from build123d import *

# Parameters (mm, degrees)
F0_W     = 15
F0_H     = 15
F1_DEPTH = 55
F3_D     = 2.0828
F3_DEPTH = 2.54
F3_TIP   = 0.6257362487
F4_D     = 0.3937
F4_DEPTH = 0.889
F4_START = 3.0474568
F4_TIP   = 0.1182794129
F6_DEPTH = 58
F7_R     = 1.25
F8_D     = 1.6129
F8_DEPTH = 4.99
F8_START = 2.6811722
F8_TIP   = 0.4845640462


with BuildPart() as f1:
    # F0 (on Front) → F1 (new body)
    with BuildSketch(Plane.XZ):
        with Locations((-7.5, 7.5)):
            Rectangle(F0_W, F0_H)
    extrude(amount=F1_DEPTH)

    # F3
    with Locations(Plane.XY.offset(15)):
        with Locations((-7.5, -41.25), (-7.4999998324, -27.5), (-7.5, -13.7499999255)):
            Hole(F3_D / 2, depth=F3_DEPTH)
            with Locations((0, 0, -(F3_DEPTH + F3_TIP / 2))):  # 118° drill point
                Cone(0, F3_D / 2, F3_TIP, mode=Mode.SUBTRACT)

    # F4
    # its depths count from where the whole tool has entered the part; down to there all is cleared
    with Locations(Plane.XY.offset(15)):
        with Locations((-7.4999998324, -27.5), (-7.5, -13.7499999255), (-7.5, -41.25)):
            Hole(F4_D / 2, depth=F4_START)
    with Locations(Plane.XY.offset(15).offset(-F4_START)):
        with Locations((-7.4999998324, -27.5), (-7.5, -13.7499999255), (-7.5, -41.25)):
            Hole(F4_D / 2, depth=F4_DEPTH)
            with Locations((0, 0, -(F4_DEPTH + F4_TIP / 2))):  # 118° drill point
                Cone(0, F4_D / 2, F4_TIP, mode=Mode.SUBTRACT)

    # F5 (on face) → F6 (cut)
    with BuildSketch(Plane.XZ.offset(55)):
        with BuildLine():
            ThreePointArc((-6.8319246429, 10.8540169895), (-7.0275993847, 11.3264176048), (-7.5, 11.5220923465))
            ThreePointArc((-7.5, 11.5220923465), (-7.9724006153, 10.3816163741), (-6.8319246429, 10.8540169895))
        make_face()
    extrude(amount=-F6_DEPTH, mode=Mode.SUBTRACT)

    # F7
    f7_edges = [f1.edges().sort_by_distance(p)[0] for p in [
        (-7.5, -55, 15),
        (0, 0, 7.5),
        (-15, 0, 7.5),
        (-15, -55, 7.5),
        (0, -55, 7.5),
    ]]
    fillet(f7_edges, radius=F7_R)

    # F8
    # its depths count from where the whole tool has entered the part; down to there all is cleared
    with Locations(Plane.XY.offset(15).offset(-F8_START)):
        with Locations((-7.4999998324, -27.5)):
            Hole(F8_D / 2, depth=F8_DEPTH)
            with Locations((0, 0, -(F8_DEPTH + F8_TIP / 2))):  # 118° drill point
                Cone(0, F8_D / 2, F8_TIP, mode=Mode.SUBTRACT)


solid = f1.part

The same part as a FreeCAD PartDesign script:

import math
import FreeCAD as App
import Part
import Sketcher
from FreeCAD import Vector


def edges_at(feature, points):
    """Names of the edges that pass closest to the given points."""
    edges = feature.Shape.Edges
    near = lambda p: min(range(len(edges)), key=lambda i: edges[i].distToShape(Part.Vertex(*p))[0])
    return sorted({f"Edge{near(p) + 1}" for p in points})


def add_polygon(sketch, points):
    """Adds a closed chain of lines whose ends are joined by coincident constraints."""
    first, n = sketch.GeometryCount, len(points)
    for a, b in zip(points, points[1:] + points[:1]):
        sketch.addGeometry(Part.LineSegment(App.Vector(*a, 0), App.Vector(*b, 0)), False)
    for i in range(n):
        sketch.addConstraint(Sketcher.Constraint("Coincident", first + i, 2, first + (i + 1) % n, 1))

doc = App.newDocument("Part")
body = doc.addObject("PartDesign::Body", "Body")

# Sketch on XZ plane
sketch1 = doc.addObject("Sketcher::SketchObject", "Sketch")
body.addObject(sketch1)
sketch1.AttachmentSupport = (doc.XZ_Plane, [""])
sketch1.MapMode = "FlatFace"
add_polygon(sketch1, [(-15, 15), (-15, 0), (0, 0), (0, 15)])  # lines 0-3
sketch1.addConstraint(Sketcher.Constraint("Vertical", 0))
sketch1.addConstraint(Sketcher.Constraint("Horizontal", 1))
sketch1.addConstraint(Sketcher.Constraint("Vertical", 2))
sketch1.addConstraint(Sketcher.Constraint("Horizontal", 3))
sketch1.addConstraint(Sketcher.Constraint("Coincident", 1, 2, -1, 1))
sketch1.addConstraint(Sketcher.Constraint("Equal", 3, 0))
sketch1.addConstraint(Sketcher.Constraint("DistanceX", 1, 1, 1, 2, 15.0))
pad1 = doc.addObject("PartDesign::Pad", "Pad")
body.addObject(pad1)
pad1.Profile = sketch1
pad1.Length = 55

# Sketch on XY plane
sketch2 = doc.addObject("Sketcher::SketchObject", "Sketch001")
body.addObject(sketch2)
sketch2.AttachmentSupport = (doc.XY_Plane, [""])
sketch2.MapMode = "FlatFace"
sketch2.AttachmentOffset = App.Placement(Vector(0, 0, 15), App.Rotation())
sketch2.addGeometry(Part.Circle(Vector(-7.5, -41.2, 0), Vector(0, 0, 1), 1), False)
sketch2.addGeometry(Part.Circle(Vector(-7.5, -27.5, 0), Vector(0, 0, 1), 1), False)
sketch2.addGeometry(Part.Circle(Vector(-7.5, -13.7, 0), Vector(0, 0, 1), 1), False)
sketch2.addConstraint(Sketcher.Constraint("Equal", 0, 1))
sketch2.addConstraint(Sketcher.Constraint("Equal", 1, 2))
sketch2.addConstraint(Sketcher.Constraint("Vertical", 0, 3, 1, 3))
sketch2.addConstraint(Sketcher.Constraint("Vertical", 1, 3, 2, 3))
sketch2.addConstraint(Sketcher.Constraint("Diameter", 0, 2.0828))
sketch2.addConstraint(Sketcher.Constraint("DistanceX", 0, 3, -1, 1, 7.5))
sketch2.addConstraint(Sketcher.Constraint("DistanceY", 1, 3, -1, 1, 27.5))
sketch2.addConstraint(Sketcher.Constraint("DistanceY", 0, 3, 2, 3, 27.5))
sketch2.addConstraint(Sketcher.Constraint("DistanceY", 0, 3, -1, 1, 41.25))
doc.recompute()
hole = doc.addObject("PartDesign::Hole", "Hole")
body.addObject(hole)
hole.Profile = sketch2
hole.ThreadType = "None"
hole.Diameter = 2.0828
hole.DepthType = "Dimension"
hole.Depth = 2.54
hole.DrillPoint = "Angled"
hole.DrillPointAngle = 118

# Sketch on XY plane
sketch3 = doc.addObject("Sketcher::SketchObject", "Sketch002")
body.addObject(sketch3)
sketch3.AttachmentSupport = (doc.XY_Plane, [""])
sketch3.MapMode = "FlatFace"
sketch3.AttachmentOffset = App.Placement(Vector(0, 0, 15), App.Rotation())
sketch3.addGeometry(Part.Circle(Vector(-7.5, -27.5, 0), Vector(0, 0, 1), 0.2), False)
sketch3.addGeometry(Part.Circle(Vector(-7.5, -13.75, 0), Vector(0, 0, 1), 0.2), False)
sketch3.addGeometry(Part.Circle(Vector(-7.5, -41.25, 0), Vector(0, 0, 1), 0.2), False)
sketch3.addConstraint(Sketcher.Constraint("Equal", 0, 1))
sketch3.addConstraint(Sketcher.Constraint("Equal", 1, 2))
sketch3.addConstraint(Sketcher.Constraint("Vertical", 0, 3, 1, 3))
sketch3.addConstraint(Sketcher.Constraint("Vertical", 1, 3, 2, 3))
sketch3.addConstraint(Sketcher.Constraint("Diameter", 0, 0.3937))
sketch3.addConstraint(Sketcher.Constraint("DistanceX", 0, 3, -1, 1, 7.5))
sketch3.addConstraint(Sketcher.Constraint("DistanceY", 0, 3, -1, 1, 27.5))
sketch3.addConstraint(Sketcher.Constraint("DistanceY", 2, 3, 1, 3, 27.5))
sketch3.addConstraint(Sketcher.Constraint("DistanceY", 1, 3, -1, 1, 13.75))
doc.recompute()
hole2 = doc.addObject("PartDesign::Hole", "Hole001")
body.addObject(hole2)
hole2.Profile = sketch3
hole2.ThreadType = "None"
hole2.Diameter = 0.3937
hole2.DepthType = "Dimension"
hole2.Depth = 3.047457
hole2.DrillPoint = "Flat"

# Sketch on XY plane
sketch4 = doc.addObject("Sketcher::SketchObject", "Sketch003")
body.addObject(sketch4)
sketch4.AttachmentSupport = (doc.XY_Plane, [""])
sketch4.MapMode = "FlatFace"
sketch4.AttachmentOffset = App.Placement(Vector(0, 0, 11.952543), App.Rotation())
sketch4.addGeometry(Part.Circle(Vector(-7.5, -27.5, 0), Vector(0, 0, 1), 0.2), False)
sketch4.addGeometry(Part.Circle(Vector(-7.5, -13.75, 0), Vector(0, 0, 1), 0.2), False)
sketch4.addGeometry(Part.Circle(Vector(-7.5, -41.25, 0), Vector(0, 0, 1), 0.2), False)
sketch4.addConstraint(Sketcher.Constraint("Equal", 0, 1))
sketch4.addConstraint(Sketcher.Constraint("Equal", 1, 2))
sketch4.addConstraint(Sketcher.Constraint("Vertical", 0, 3, 1, 3))
sketch4.addConstraint(Sketcher.Constraint("Vertical", 1, 3, 2, 3))
sketch4.addConstraint(Sketcher.Constraint("Diameter", 0, 0.3937))
sketch4.addConstraint(Sketcher.Constraint("DistanceX", 0, 3, -1, 1, 7.5))
sketch4.addConstraint(Sketcher.Constraint("DistanceY", 0, 3, -1, 1, 27.5))
sketch4.addConstraint(Sketcher.Constraint("DistanceY", 2, 3, 1, 3, 27.5))
sketch4.addConstraint(Sketcher.Constraint("DistanceY", 1, 3, -1, 1, 13.75))
doc.recompute()
hole3 = doc.addObject("PartDesign::Hole", "Hole002")
body.addObject(hole3)
hole3.Profile = sketch4
hole3.ThreadType = "None"
hole3.Diameter = 0.3937
hole3.DepthType = "Dimension"
hole3.Depth = 0.889
hole3.DrillPoint = "Angled"
hole3.DrillPointAngle = 118

# Sketch on XZ plane
sketch5 = doc.addObject("Sketcher::SketchObject", "Sketch004")
body.addObject(sketch5)
sketch5.AttachmentSupport = (doc.XZ_Plane, [""])
sketch5.MapMode = "FlatFace"
sketch5.AttachmentOffset = App.Placement(Vector(0, 0, 55), App.Rotation())
sketch5.addGeometry(Part.ArcOfCircle(Part.Circle(Vector(-7.5, 10.9, 0), Vector(0, 0, 1), 0.7), math.radians(0), math.radians(90)), False)
sketch5.addGeometry(Part.ArcOfCircle(Part.Circle(Vector(-7.5, 10.9, 0), Vector(0, 0, 1), 0.7), math.radians(90), math.radians(360)), False)
sketch5.addConstraint(Sketcher.Constraint("Tangent", 0, 1, 1, 2))
sketch5.addConstraint(Sketcher.Constraint("Coincident", 1, 1, 0, 2))
sketch5.addConstraint(Sketcher.Constraint("Horizontal", 1, 3, 0, 1))
sketch5.addConstraint(Sketcher.Constraint("Vertical", 0, 3, 1, 1))
sketch5.addConstraint(Sketcher.Constraint("DistanceX", 0, 3, -1, 1, 7.5))
sketch5.addConstraint(Sketcher.Constraint("Radius", 0, 0.668075))
sketch5.addConstraint(Sketcher.Constraint("DistanceY", -1, 1, 0, 3, 10.854017))
pocket1 = doc.addObject("PartDesign::Pocket", "Pocket")
body.addObject(pocket1)
pocket1.Profile = sketch5
pocket1.Length = 58
doc.recompute()

fillet = doc.addObject("PartDesign::Fillet", "Fillet")
body.addObject(fillet)
fillet.Base = (pocket1, edges_at(pocket1, [
    (-7.5, -55, 15),
    (0, 0, 7.5),
    (-15, 0, 7.5),
    (-15, -55, 7.5),
    (0, -55, 7.5),
]))
fillet.Radius = 1.25

# Sketch on XY plane
sketch6 = doc.addObject("Sketcher::SketchObject", "Sketch005")
body.addObject(sketch6)
sketch6.AttachmentSupport = (doc.XY_Plane, [""])
sketch6.MapMode = "FlatFace"
sketch6.AttachmentOffset = App.Placement(Vector(0, 0, 12.318828), App.Rotation())
sketch6.addGeometry(Part.Circle(Vector(-7.5, -27.5, 0), Vector(0, 0, 1), 0.8), False)
sketch6.addConstraint(Sketcher.Constraint("Diameter", 0, 1.6129))
sketch6.addConstraint(Sketcher.Constraint("DistanceX", 0, 3, -1, 1, 7.5))
sketch6.addConstraint(Sketcher.Constraint("DistanceY", 0, 3, -1, 1, 27.5))
doc.recompute()
hole4 = doc.addObject("PartDesign::Hole", "Hole003")
body.addObject(hole4)
hole4.Profile = sketch6
hole4.ThreadType = "None"
hole4.Diameter = 1.6129
hole4.DepthType = "Dimension"
hole4.Depth = 4.99
hole4.DrillPoint = "Angled"
hole4.DrillPointAngle = 118

doc.recompute()
